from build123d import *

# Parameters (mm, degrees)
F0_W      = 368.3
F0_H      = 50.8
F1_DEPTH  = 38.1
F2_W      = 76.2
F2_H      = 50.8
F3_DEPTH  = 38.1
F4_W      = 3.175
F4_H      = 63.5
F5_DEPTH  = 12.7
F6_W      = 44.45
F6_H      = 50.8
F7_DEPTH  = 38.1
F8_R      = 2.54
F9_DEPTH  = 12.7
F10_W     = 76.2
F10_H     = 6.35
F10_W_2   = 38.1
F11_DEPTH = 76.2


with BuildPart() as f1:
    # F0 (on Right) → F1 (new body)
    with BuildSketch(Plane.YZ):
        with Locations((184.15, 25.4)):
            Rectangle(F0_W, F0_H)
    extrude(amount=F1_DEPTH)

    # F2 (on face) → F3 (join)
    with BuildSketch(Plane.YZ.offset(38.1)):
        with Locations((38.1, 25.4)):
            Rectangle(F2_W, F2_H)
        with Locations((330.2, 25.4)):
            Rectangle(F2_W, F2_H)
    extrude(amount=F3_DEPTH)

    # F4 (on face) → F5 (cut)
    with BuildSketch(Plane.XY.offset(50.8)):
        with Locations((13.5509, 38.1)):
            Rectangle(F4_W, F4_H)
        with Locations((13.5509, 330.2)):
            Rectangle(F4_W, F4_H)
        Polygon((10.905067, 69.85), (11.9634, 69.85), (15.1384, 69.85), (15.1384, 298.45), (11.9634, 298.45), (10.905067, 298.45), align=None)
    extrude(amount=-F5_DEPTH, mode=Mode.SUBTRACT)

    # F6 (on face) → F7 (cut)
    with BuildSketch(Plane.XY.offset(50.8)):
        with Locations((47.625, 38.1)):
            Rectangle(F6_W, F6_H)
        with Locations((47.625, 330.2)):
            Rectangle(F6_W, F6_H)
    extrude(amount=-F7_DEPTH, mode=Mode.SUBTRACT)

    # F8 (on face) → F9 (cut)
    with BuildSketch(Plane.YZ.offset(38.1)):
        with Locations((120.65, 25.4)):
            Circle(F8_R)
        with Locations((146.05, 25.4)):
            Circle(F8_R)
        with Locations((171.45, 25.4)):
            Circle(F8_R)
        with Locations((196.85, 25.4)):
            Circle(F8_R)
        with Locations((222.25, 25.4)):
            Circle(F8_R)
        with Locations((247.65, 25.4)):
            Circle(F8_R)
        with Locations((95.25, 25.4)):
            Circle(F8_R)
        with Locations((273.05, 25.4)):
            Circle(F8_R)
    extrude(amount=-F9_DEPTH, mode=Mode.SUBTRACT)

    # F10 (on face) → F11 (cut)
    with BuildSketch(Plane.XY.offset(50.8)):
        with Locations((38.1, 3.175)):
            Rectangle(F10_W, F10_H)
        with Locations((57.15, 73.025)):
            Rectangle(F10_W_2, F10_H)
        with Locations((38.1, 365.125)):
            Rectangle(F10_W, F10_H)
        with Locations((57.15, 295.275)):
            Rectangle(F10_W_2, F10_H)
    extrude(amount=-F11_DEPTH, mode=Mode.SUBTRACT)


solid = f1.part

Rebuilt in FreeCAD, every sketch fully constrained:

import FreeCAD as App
import Part
import Sketcher
Q = App.Units.Quantity

doc = App.newDocument("Part")
body = doc.addObject("PartDesign::Body", "Body")

# Sketch on YZ plane
sketch1 = body.newObject("Sketcher::SketchObject", "Sketch")
sketch1.AttachmentSupport = (doc.getObject("YZ_Plane"), [""])
sketch1.MapMode = "FlatFace"
sketch1.addGeometry(Part.LineSegment(App.Vector(0, 50.8, 0), App.Vector(0, 0, 0)), False)
sketch1.addGeometry(Part.LineSegment(App.Vector(0, 0, 0), App.Vector(368.3, 0, 0)), False)
sketch1.addGeometry(Part.LineSegment(App.Vector(368.3, 0, 0), App.Vector(368.3, 50.8, 0)), False)
sketch1.addGeometry(Part.LineSegment(App.Vector(368.3, 50.8, 0), App.Vector(0, 50.8, 0)), False)
sketch1.addConstraint(Sketcher.Constraint("Coincident", 0, 2, 1, 1))
sketch1.addConstraint(Sketcher.Constraint("Coincident", 1, 2, 2, 1))
sketch1.addConstraint(Sketcher.Constraint("Coincident", 2, 2, 3, 1))
sketch1.addConstraint(Sketcher.Constraint("Coincident", 3, 2, 0, 1))
sketch1.addConstraint(Sketcher.Constraint("Vertical", 0))
sketch1.addConstraint(Sketcher.Constraint("Horizontal", 1))
sketch1.addConstraint(Sketcher.Constraint("Vertical", 2))
sketch1.addConstraint(Sketcher.Constraint("Horizontal", 3))
sketch1.addConstraint(Sketcher.Constraint("Coincident", 0, 2, -1, 1))
sketch1.addConstraint(Sketcher.Constraint("DistanceY", 0, 2, 0, 1, Q("2 in")))
sketch1.addConstraint(Sketcher.Constraint("DistanceX", 1, 1, 1, 2, Q("14.5 in")))
pad1 = body.newObject("PartDesign::Pad", "Pad")
pad1.Profile = sketch1
pad1.Length = Q("1.5 in")

# Sketch on YZ plane
sketch2 = body.newObject("Sketcher::SketchObject", "Sketch001")
sketch2.AttachmentSupport = (doc.getObject("YZ_Plane"), [""])
sketch2.MapMode = "FlatFace"
sketch2.AttachmentOffset = App.Placement(App.Vector(0, 0, 1.5 * 25.4), App.Rotation())
sketch2.addGeometry(Part.LineSegment(App.Vector(0, 50.8, 0), App.Vector(0, 0, 0)), False)
sketch2.addGeometry(Part.LineSegment(App.Vector(0, 0, 0), App.Vector(76.2, 0, 0)), False)
sketch2.addGeometry(Part.LineSegment(App.Vector(76.2, 0, 0), App.Vector(76.2, 50.8, 0)), False)
sketch2.addGeometry(Part.LineSegment(App.Vector(76.2, 50.8, 0), App.Vector(0, 50.8, 0)), False)
sketch2.addGeometry(Part.LineSegment(App.Vector(292.1, 50.8, 0), App.Vector(292.1, 0, 0)), False)
sketch2.addGeometry(Part.LineSegment(App.Vector(292.1, 0, 0), App.Vector(368.3, 0, 0)), False)
sketch2.addGeometry(Part.LineSegment(App.Vector(368.3, 0, 0), App.Vector(368.3, 50.8, 0)), False)
sketch2.addGeometry(Part.LineSegment(App.Vector(368.3, 50.8, 0), App.Vector(292.1, 50.8, 0)), False)
sketch2.addConstraint(Sketcher.Constraint("Coincident", 0, 2, 1, 1))
sketch2.addConstraint(Sketcher.Constraint("Coincident", 1, 2, 2, 1))
sketch2.addConstraint(Sketcher.Constraint("Coincident", 2, 2, 3, 1))
sketch2.addConstraint(Sketcher.Constraint("Coincident", 3, 2, 0, 1))
sketch2.addConstraint(Sketcher.Constraint("Coincident", 4, 2, 5, 1))
sketch2.addConstraint(Sketcher.Constraint("Coincident", 5, 2, 6, 1))
sketch2.addConstraint(Sketcher.Constraint("Coincident", 6, 2, 7, 1))
sketch2.addConstraint(Sketcher.Constraint("Coincident", 7, 2, 4, 1))
sketch2.addConstraint(Sketcher.Constraint("Vertical", 0))
sketch2.addConstraint(Sketcher.Constraint("Horizontal", 1))
sketch2.addConstraint(Sketcher.Constraint("Vertical", 2))
sketch2.addConstraint(Sketcher.Constraint("Horizontal", 3))
sketch2.addConstraint(Sketcher.Constraint("Vertical", 4))
sketch2.addConstraint(Sketcher.Constraint("Horizontal", 5))
sketch2.addConstraint(Sketcher.Constraint("Vertical", 6))
sketch2.addConstraint(Sketcher.Constraint("Horizontal", 7))
sketch2.addConstraint(Sketcher.Constraint("Coincident", 0, 2, -1, 1))
sketch2.addConstraint(Sketcher.Constraint("PointOnObject", 4, 2, -1))
sketch2.addConstraint(Sketcher.Constraint("Horizontal", 3, 2, 6, 2))
sketch2.addConstraint(Sketcher.Constraint("Equal", 3, 5))
sketch2.addConstraint(Sketcher.Constraint("DistanceX", 1, 1, 1, 2, Q("3 in")))
sketch2.addConstraint(Sketcher.Constraint("DistanceY", 0, 2, 0, 1, Q("2 in")))
sketch2.addConstraint(Sketcher.Constraint("DistanceX", -1, 1, 4, 2, Q("11.5 in")))
pad2 = body.newObject("PartDesign::Pad", "Pad001")
pad2.Profile = sketch2
pad2.Length = Q("1.5 in")

# Sketch on XY plane
sketch3 = body.newObject("Sketcher::SketchObject", "Sketch002")
sketch3.AttachmentSupport = (doc.getObject("XY_Plane"), [""])
sketch3.MapMode = "FlatFace"
sketch3.AttachmentOffset = App.Placement(App.Vector(0, 0, 2 * 25.4), App.Rotation())
sketch3.addGeometry(Part.LineSegment(App.Vector(11.9634, 69.85, 0), App.Vector(11.9634, 6.35, 0)), False)
sketch3.addGeometry(Part.LineSegment(App.Vector(11.9634, 6.35, 0), App.Vector(15.1384, 6.35, 0)), False)
sketch3.addGeometry(Part.LineSegment(App.Vector(15.1384, 6.35, 0), App.Vector(15.1384, 361.95, 0)), False)
sketch3.addGeometry(Part.LineSegment(App.Vector(15.1384, 361.95, 0), App.Vector(11.9634, 361.95, 0)), False)
sketch3.addGeometry(Part.LineSegment(App.Vector(11.9634, 361.95, 0), App.Vector(11.9634, 298.45, 0)), False)
sketch3.addGeometry(Part.LineSegment(App.Vector(11.9634, 298.45, 0), App.Vector(10.905067, 298.45, 0)), False)
sketch3.addGeometry(Part.LineSegment(App.Vector(10.905067, 298.45, 0), App.Vector(10.905067, 69.85, 0)), False)
sketch3.addGeometry(Part.LineSegment(App.Vector(10.905067, 69.85, 0), App.Vector(11.9634, 69.85, 0)), False)
sketch3.addConstraint(Sketcher.Constraint("Coincident", 0, 2, 1, 1))
sketch3.addConstraint(Sketcher.Constraint("Coincident", 1, 2, 2, 1))
sketch3.addConstraint(Sketcher.Constraint("Coincident", 2, 2, 3, 1))
sketch3.addConstraint(Sketcher.Constraint("Coincident", 3, 2, 4, 1))
sketch3.addConstraint(Sketcher.Constraint("Coincident", 4, 2, 5, 1))
sketch3.addConstraint(Sketcher.Constraint("Coincident", 5, 2, 6, 1))
sketch3.addConstraint(Sketcher.Constraint("Coincident", 6, 2, 7, 1))
sketch3.addConstraint(Sketcher.Constraint("Coincident", 7, 2, 0, 1))
sketch3.addConstraint(Sketcher.Constraint("Vertical", 0))
sketch3.addConstraint(Sketcher.Constraint("Horizontal", 1))
sketch3.addConstraint(Sketcher.Constraint("Vertical", 2))
sketch3.addConstraint(Sketcher.Constraint("Horizontal", 3))
sketch3.addConstraint(Sketcher.Constraint("Vertical", 4))
sketch3.addConstraint(Sketcher.Constraint("Horizontal", 5))
sketch3.addConstraint(Sketcher.Constraint("Vertical", 6))
sketch3.addConstraint(Sketcher.Constraint("Horizontal", 7))
sketch3.addConstraint(Sketcher.Constraint("Vertical", 0, 2, 3, 2))
sketch3.addConstraint(Sketcher.Constraint("Equal", 0, 4))
sketch3.addConstraint(Sketcher.Constraint("DistanceY", 2, 1, 2, 2, Q("14 in")))
sketch3.addConstraint(Sketcher.Constraint("DistanceY", 6, 2, 6, 1, Q("9 in")))
sketch3.addConstraint(Sketcher.Constraint("DistanceX", 1, 1, 1, 2, Q("0.125 in")))
sketch3.addConstraint(Sketcher.Constraint("DistanceY", -1, 1, 0, 2, Q("0.25 in")))
sketch3.addConstraint(Sketcher.Constraint("DistanceX", -1, 1, 0, 2, Q("0.471 in")))
sketch3.addConstraint(Sketcher.Constraint("DistanceX", 5, 2, 5, 1, Q("1.058333 mm")))
pocket1 = body.newObject("PartDesign::Pocket", "Pocket")
pocket1.Profile = sketch3
pocket1.Length = Q("0.5 in")

# Sketch on XY plane
sketch4 = body.newObject("Sketcher::SketchObject", "Sketch003")
sketch4.AttachmentSupport = (doc.getObject("XY_Plane"), [""])
sketch4.MapMode = "FlatFace"
sketch4.AttachmentOffset = App.Placement(App.Vector(0, 0, 2 * 25.4), App.Rotation())
sketch4.addGeometry(Part.LineSegment(App.Vector(25.4, 63.5, 0), App.Vector(25.4, 12.7, 0)), False)
sketch4.addGeometry(Part.LineSegment(App.Vector(25.4, 12.7, 0), App.Vector(69.85, 12.7, 0)), False)
sketch4.addGeometry(Part.LineSegment(App.Vector(69.85, 12.7, 0), App.Vector(69.85, 63.5, 0)), False)
sketch4.addGeometry(Part.LineSegment(App.Vector(69.85, 63.5, 0), App.Vector(25.4, 63.5, 0)), False)
sketch4.addGeometry(Part.LineSegment(App.Vector(25.4, 355.6, 0), App.Vector(25.4, 304.8, 0)), False)
sketch4.addGeometry(Part.LineSegment(App.Vector(25.4, 304.8, 0), App.Vector(69.85, 304.8, 0)), False)
sketch4.addGeometry(Part.LineSegment(App.Vector(69.85, 304.8, 0), App.Vector(69.85, 355.6, 0)), False)
sketch4.addGeometry(Part.LineSegment(App.Vector(69.85, 355.6, 0), App.Vector(25.4, 355.6, 0)), False)
sketch4.addConstraint(Sketcher.Constraint("Coincident", 0, 2, 1, 1))
sketch4.addConstraint(Sketcher.Constraint("Coincident", 1, 2, 2, 1))
sketch4.addConstraint(Sketcher.Constraint("Coincident", 2, 2, 3, 1))
sketch4.addConstraint(Sketcher.Constraint("Coincident", 3, 2, 0, 1))
sketch4.addConstraint(Sketcher.Constraint("Coincident", 4, 2, 5, 1))
sketch4.addConstraint(Sketcher.Constraint("Coincident", 5, 2, 6, 1))
sketch4.addConstraint(Sketcher.Constraint("Coincident", 6, 2, 7, 1))
sketch4.addConstraint(Sketcher.Constraint("Coincident", 7, 2, 4, 1))
sketch4.addConstraint(Sketcher.Constraint("Vertical", 0))
sketch4.addConstraint(Sketcher.Constraint("Horizontal", 1))
sketch4.addConstraint(Sketcher.Constraint("Vertical", 2))
sketch4.addConstraint(Sketcher.Constraint("Horizontal", 3))
sketch4.addConstraint(Sketcher.Constraint("Vertical", 4))
sketch4.addConstraint(Sketcher.Constraint("Horizontal", 5))
sketch4.addConstraint(Sketcher.Constraint("Vertical", 6))
sketch4.addConstraint(Sketcher.Constraint("Horizontal", 7))
sketch4.addConstraint(Sketcher.Constraint("Vertical", 3, 2, 4, 2))
sketch4.addConstraint(Sketcher.Constraint("Vertical", 2, 2, 5, 2))
sketch4.addConstraint(Sketcher.Constraint("Equal", 2, 4))
sketch4.addConstraint(Sketcher.Constraint("DistanceY", 0, 2, 0, 1, Q("2 in")))
sketch4.addConstraint(Sketcher.Constraint("DistanceX", -1, 1, 0, 2, Q("1 in")))
sketch4.addConstraint(Sketcher.Constraint("DistanceY", -1, 1, 4, 2, Q("12 in")))
sketch4.addConstraint(Sketcher.Constraint("DistanceX", 1, 1, 1, 2, Q("1.75 in")))
sketch4.addConstraint(Sketcher.Constraint("DistanceY", -1, 1, 0, 2, Q("0.5 in")))
pocket2 = body.newObject("PartDesign::Pocket", "Pocket001")
pocket2.Profile = sketch4
pocket2.Length = Q("1.5 in")

# Sketch on YZ plane
sketch5 = body.newObject("Sketcher::SketchObject", "Sketch004")
sketch5.AttachmentSupport = (doc.getObject("YZ_Plane"), [""])
sketch5.MapMode = "FlatFace"
sketch5.AttachmentOffset = App.Placement(App.Vector(0, 0, 1.5 * 25.4), App.Rotation())
sketch5.addGeometry(Part.Circle(App.Vector(120.65, 25.4, 0), App.Vector(0, 0, 1), 2.54), False)
sketch5.addGeometry(Part.Circle(App.Vector(146.05, 25.4, 0), App.Vector(0, 0, 1), 2.54), False)
sketch5.addGeometry(Part.Circle(App.Vector(171.45, 25.4, 0), App.Vector(0, 0, 1), 2.54), False)
sketch5.addGeometry(Part.Circle(App.Vector(196.85, 25.4, 0), App.Vector(0, 0, 1), 2.54), False)
sketch5.addGeometry(Part.Circle(App.Vector(222.25, 25.4, 0), App.Vector(0, 0, 1), 2.54), False)
sketch5.addGeometry(Part.Circle(App.Vector(247.65, 25.4, 0), App.Vector(0, 0, 1), 2.54), False)
sketch5.addGeometry(Part.Circle(App.Vector(95.25, 25.4, 0), App.Vector(0, 0, 1), 2.54), False)
sketch5.addGeometry(Part.Circle(App.Vector(273.05, 25.4, 0), App.Vector(0, 0, 1), 2.54), False)
sketch5.addConstraint(Sketcher.Constraint("Equal", 0, 1))
sketch5.addConstraint(Sketcher.Constraint("Equal", 1, 2))
sketch5.addConstraint(Sketcher.Constraint("Equal", 2, 3))
sketch5.addConstraint(Sketcher.Constraint("Equal", 3, 4))
sketch5.addConstraint(Sketcher.Constraint("Equal", 4, 5))
sketch5.addConstraint(Sketcher.Constraint("Equal", 5, 6))
sketch5.addConstraint(Sketcher.Constraint("Equal", 6, 7))
sketch5.addConstraint(Sketcher.Constraint("Horizontal", 0, 3, 1, 3))
sketch5.addConstraint(Sketcher.Constraint("Horizontal", 1, 3, 2, 3))
sketch5.addConstraint(Sketcher.Constraint("Horizontal", 2, 3, 3, 3))
sketch5.addConstraint(Sketcher.Constraint("Horizontal", 3, 3, 4, 3))
sketch5.addConstraint(Sketcher.Constraint("Horizontal", 4, 3, 5, 3))
sketch5.addConstraint(Sketcher.Constraint("Horizontal", 5, 3, 6, 3))
sketch5.addConstraint(Sketcher.Constraint("Horizontal", 6, 3, 7, 3))
sketch5.addConstraint(Sketcher.Constraint("Diameter", 0, Q("0.2 in")))
sketch5.addConstraint(Sketcher.Constraint("DistanceY", -1, 1, 0, 3, Q("1 in")))
sketch5.addConstraint(Sketcher.Constraint("DistanceX", 0, 3, 1, 3, Q("1 in")))
sketch5.addConstraint(Sketcher.Constraint("DistanceX", 1, 3, 2, 3, Q("1 in")))
sketch5.addConstraint(Sketcher.Constraint("DistanceX", 2, 3, 3, 3, Q("1 in")))
sketch5.addConstraint(Sketcher.Constraint("DistanceX", 3, 3, 4, 3, Q("1 in")))
sketch5.addConstraint(Sketcher.Constraint("DistanceX", 4, 3, 5, 3, Q("1 in")))
sketch5.addConstraint(Sketcher.Constraint("DistanceX", 6, 3, 0, 3, Q("1 in")))
sketch5.addConstraint(Sketcher.Constraint("DistanceX", 5, 3, 7, 3, Q("1 in")))
sketch5.addConstraint(Sketcher.Constraint("DistanceX", -1, 1, 0, 3, Q("4.75 in")))
pocket3 = body.newObject("PartDesign::Pocket", "Pocket002")
pocket3.Profile = sketch5
pocket3.Length = Q("0.5 in")

# Sketch on XY plane
sketch6 = body.newObject("Sketcher::SketchObject", "Sketch005")
sketch6.AttachmentSupport = (doc.getObject("XY_Plane"), [""])
sketch6.MapMode = "FlatFace"
sketch6.AttachmentOffset = App.Placement(App.Vector(0, 0, 2 * 25.4), App.Rotation())
sketch6.addGeometry(Part.LineSegment(App.Vector(0, 6.35, 0), App.Vector(0, 0, 0)), False)
sketch6.addGeometry(Part.LineSegment(App.Vector(0, 0, 0), App.Vector(76.2, 0, 0)), False)
sketch6.addGeometry(Part.LineSegment(App.Vector(76.2, 0, 0), App.Vector(76.2, 6.35, 0)), False)
sketch6.addGeometry(Part.LineSegment(App.Vector(76.2, 6.35, 0), App.Vector(0, 6.35, 0)), False)
sketch6.addGeometry(Part.LineSegment(App.Vector(38.1, 76.2, 0), App.Vector(38.1, 69.85, 0)), False)
sketch6.addGeometry(Part.LineSegment(App.Vector(38.1, 69.85, 0), App.Vector(76.2, 69.85, 0)), False)
sketch6.addGeometry(Part.LineSegment(App.Vector(76.2, 69.85, 0), App.Vector(76.2, 76.2, 0)), False)
sketch6.addGeometry(Part.LineSegment(App.Vector(76.2, 76.2, 0), App.Vector(38.1, 76.2, 0)), False)
sketch6.addGeometry(Part.LineSegment(App.Vector(0, 368.3, 0), App.Vector(0, 361.95, 0)), False)
sketch6.addGeometry(Part.LineSegment(App.Vector(0, 361.95, 0), App.Vector(76.2, 361.95, 0)), False)
sketch6.addGeometry(Part.LineSegment(App.Vector(76.2, 361.95, 0), App.Vector(76.2, 368.3, 0)), False)
sketch6.addGeometry(Part.LineSegment(App.Vector(76.2, 368.3, 0), App.Vector(0, 368.3, 0)), False)
sketch6.addGeometry(Part.LineSegment(App.Vector(38.1, 298.45, 0), App.Vector(38.1, 292.1, 0)), False)
sketch6.addGeometry(Part.LineSegment(App.Vector(38.1, 292.1, 0), App.Vector(76.2, 292.1, 0)), False)
sketch6.addGeometry(Part.LineSegment(App.Vector(76.2, 292.1, 0), App.Vector(76.2, 298.45, 0)), False)
sketch6.addGeometry(Part.LineSegment(App.Vector(76.2, 298.45, 0), App.Vector(38.1, 298.45, 0)), False)
sketch6.addConstraint(Sketcher.Constraint("Coincident", 0, 2, 1, 1))
sketch6.addConstraint(Sketcher.Constraint("Coincident", 1, 2, 2, 1))
sketch6.addConstraint(Sketcher.Constraint("Coincident", 2, 2, 3, 1))
sketch6.addConstraint(Sketcher.Constraint("Coincident", 3, 2, 0, 1))
sketch6.addConstraint(Sketcher.Constraint("Coincident", 4, 2, 5, 1))
sketch6.addConstraint(Sketcher.Constraint("Coincident", 5, 2, 6, 1))
sketch6.addConstraint(Sketcher.Constraint("Coincident", 6, 2, 7, 1))
sketch6.addConstraint(Sketcher.Constraint("Coincident", 7, 2, 4, 1))
sketch6.addConstraint(Sketcher.Constraint("Coincident", 8, 2, 9, 1))
sketch6.addConstraint(Sketcher.Constraint("Coincident", 9, 2, 10, 1))
sketch6.addConstraint(Sketcher.Constraint("Coincident", 10, 2, 11, 1))
sketch6.addConstraint(Sketcher.Constraint("Coincident", 11, 2, 8, 1))
sketch6.addConstraint(Sketcher.Constraint("Coincident", 12, 2, 13, 1))
sketch6.addConstraint(Sketcher.Constraint("Coincident", 13, 2, 14, 1))
sketch6.addConstraint(Sketcher.Constraint("Coincident", 14, 2, 15, 1))
sketch6.addConstraint(Sketcher.Constraint("Coincident", 15, 2, 12, 1))
sketch6.addConstraint(Sketcher.Constraint("Vertical", 0))
sketch6.addConstraint(Sketcher.Constraint("Horizontal", 1))
sketch6.addConstraint(Sketcher.Constraint("Vertical", 2))
sketch6.addConstraint(Sketcher.Constraint("Horizontal", 3))
sketch6.addConstraint(Sketcher.Constraint("Vertical", 4))
sketch6.addConstraint(Sketcher.Constraint("Horizontal", 5))
sketch6.addConstraint(Sketcher.Constraint("Vertical", 6))
sketch6.addConstraint(Sketcher.Constraint("Horizontal", 7))
sketch6.addConstraint(Sketcher.Constraint("Vertical", 8))
sketch6.addConstraint(Sketcher.Constraint("Horizontal", 9))
sketch6.addConstraint(Sketcher.Constraint("Vertical", 10))
sketch6.addConstraint(Sketcher.Constraint("Horizontal", 11))
sketch6.addConstraint(Sketcher.Constraint("Vertical", 12))
sketch6.addConstraint(Sketcher.Constraint("Horizontal", 13))
sketch6.addConstraint(Sketcher.Constraint("Vertical", 14))
sketch6.addConstraint(Sketcher.Constraint("Horizontal", 15))
sketch6.addConstraint(Sketcher.Constraint("Coincident", 0, 2, -1, 1))
sketch6.addConstraint(Sketcher.Constraint("PointOnObject", 8, 2, -2))
sketch6.addConstraint(Sketcher.Constraint("Vertical", 2, 2, 5, 2))
sketch6.addConstraint(Sketcher.Constraint("Vertical", 6, 2, 9, 2))
sketch6.addConstraint(Sketcher.Constraint("Vertical", 7, 2, 12, 2))
sketch6.addConstraint(Sketcher.Constraint("Vertical", 10, 2, 13, 2))
sketch6.addConstraint(Sketcher.Constraint("Equal", 2, 4))
sketch6.addConstraint(Sketcher.Constraint("Equal", 6, 8))
sketch6.addConstraint(Sketcher.Constraint("Equal", 10, 12))
sketch6.addConstraint(Sketcher.Constraint("DistanceX", 1, 1, 1, 2, Q("3 in")))
sketch6.addConstraint(Sketcher.Constraint("DistanceX", 5, 1, 5, 2, Q("1.5 in")))
sketch6.addConstraint(Sketcher.Constraint("DistanceY", -1, 1, 6, 2, Q("3 in")))
sketch6.addConstraint(Sketcher.Constraint("DistanceY", 3, 2, 8, 2, Q("14 in")))
sketch6.addConstraint(Sketcher.Constraint("DistanceY", 12, 2, 10, 2, Q("3 in")))
sketch6.addConstraint(Sketcher.Constraint("DistanceY", 0, 2, 0, 1, Q("0.25 in")))
pocket4 = body.newObject("PartDesign::Pocket", "Pocket003")
pocket4.Profile = sketch6
pocket4.Length = Q("3 in")

doc.recompute()
